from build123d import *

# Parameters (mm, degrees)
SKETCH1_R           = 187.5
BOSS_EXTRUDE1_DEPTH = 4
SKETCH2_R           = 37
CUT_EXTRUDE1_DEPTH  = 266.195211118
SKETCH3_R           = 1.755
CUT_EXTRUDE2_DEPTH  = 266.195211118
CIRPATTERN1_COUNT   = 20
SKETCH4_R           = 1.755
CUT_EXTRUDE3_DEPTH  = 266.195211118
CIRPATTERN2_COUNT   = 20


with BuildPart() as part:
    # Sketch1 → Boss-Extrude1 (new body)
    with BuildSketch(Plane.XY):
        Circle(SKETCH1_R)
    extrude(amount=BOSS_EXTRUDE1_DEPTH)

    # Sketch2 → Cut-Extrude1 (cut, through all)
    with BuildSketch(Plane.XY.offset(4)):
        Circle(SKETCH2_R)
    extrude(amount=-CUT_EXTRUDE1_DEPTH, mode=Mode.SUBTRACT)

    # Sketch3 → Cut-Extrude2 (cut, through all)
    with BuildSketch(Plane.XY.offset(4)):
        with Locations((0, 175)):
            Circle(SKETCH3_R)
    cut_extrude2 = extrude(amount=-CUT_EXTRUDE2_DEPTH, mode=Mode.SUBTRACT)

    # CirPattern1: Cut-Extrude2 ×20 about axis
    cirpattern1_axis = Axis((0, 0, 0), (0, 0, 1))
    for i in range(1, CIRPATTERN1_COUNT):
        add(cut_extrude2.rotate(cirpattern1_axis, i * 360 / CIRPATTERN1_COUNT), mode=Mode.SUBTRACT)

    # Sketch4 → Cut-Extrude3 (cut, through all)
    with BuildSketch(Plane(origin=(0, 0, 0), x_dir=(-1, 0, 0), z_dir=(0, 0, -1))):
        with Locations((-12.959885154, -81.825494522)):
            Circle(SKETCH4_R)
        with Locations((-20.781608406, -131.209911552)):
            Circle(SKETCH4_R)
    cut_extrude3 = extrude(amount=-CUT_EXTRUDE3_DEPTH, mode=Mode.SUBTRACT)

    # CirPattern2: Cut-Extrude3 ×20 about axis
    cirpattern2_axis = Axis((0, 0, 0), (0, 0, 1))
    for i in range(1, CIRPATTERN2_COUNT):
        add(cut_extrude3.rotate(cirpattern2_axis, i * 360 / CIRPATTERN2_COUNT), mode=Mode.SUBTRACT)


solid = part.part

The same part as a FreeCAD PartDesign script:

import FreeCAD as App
import Part
import Sketcher
Q = App.Units.Quantity

doc = App.newDocument("Part")
body = doc.addObject("PartDesign::Body", "Body")

# Sketch on XY plane
sketch1 = body.newObject("Sketcher::SketchObject", "Sketch")
sketch1.AttachmentSupport = (doc.getObject("XY_Plane"), [""])
sketch1.MapMode = "FlatFace"
sketch1.addGeometry(Part.Circle(App.Vector(0, 0, 0), App.Vector(0, 0, 1), 188), False)
sketch1.addConstraint([
    Sketcher.Constraint("Coincident", 0, 3, -1, 1),
    Sketcher.Constraint("Diameter", 0, Q("375 mm")),
])
pad1 = body.newObject("PartDesign::Pad", "Pad")
pad1.Profile = sketch1
pad1.Length = 4

# Sketch on XY plane
sketch2 = body.newObject("Sketcher::SketchObject", "Sketch001")
sketch2.AttachmentSupport = (doc.getObject("XY_Plane"), [""])
sketch2.MapMode = "FlatFace"
sketch2.AttachmentOffset = App.Placement(App.Vector(0, 0, 4), App.Rotation())
sketch2.addGeometry(Part.Circle(App.Vector(0, 0, 0), App.Vector(0, 0, 1), 37), False)
sketch2.addConstraint([
    Sketcher.Constraint("Coincident", 0, 3, -1, 1),
    Sketcher.Constraint("Diameter", 0, Q("74 mm")),
])
pocket1 = body.newObject("PartDesign::Pocket", "Pocket")
pocket1.Profile = sketch2
pocket1.Type = "ThroughAll"

# Sketch on XY plane
sketch3 = body.newObject("Sketcher::SketchObject", "Sketch002")
sketch3.AttachmentSupport = (doc.getObject("XY_Plane"), [""])
sketch3.MapMode = "FlatFace"
sketch3.AttachmentOffset = App.Placement(App.Vector(0, 0, 4), App.Rotation())
sketch3.addGeometry(Part.Circle(App.Vector(0, 175, 0), App.Vector(0, 0, 1), 1.8), False)
sketch3.addConstraint([
    Sketcher.Constraint("PointOnObject", 0, 3, -2),
    Sketcher.Constraint("Diameter", 0, Q("3.51 mm")),
    Sketcher.Constraint("DistanceY", -1, 1, 0, 3, Q("175 mm")),
])
pocket2 = body.newObject("PartDesign::Pocket", "Pocket001")
pocket2.Profile = sketch3
pocket2.Type = "ThroughAll"
doc.recompute()

polarpattern = body.newObject("PartDesign::PolarPattern", "PolarPattern")
polarpattern.Originals = [pocket2]
polarpattern.Axis = (doc.getObject("Z_Axis"), [""])
polarpattern.Angle = 360
polarpattern.Occurrences = 20
body.Tip = polarpattern

# Sketch on XY plane
sketch4 = body.newObject("Sketcher::SketchObject", "Sketch003")
sketch4.AttachmentSupport = (doc.getObject("XY_Plane"), [""])
sketch4.MapMode = "FlatFace"
sketch4.addGeometry([
    Part.Circle(App.Vector(13, -81.8, 0), App.Vector(0, 0, 1), 1.8),
    Part.Circle(App.Vector(20.8, -131.2, 0), App.Vector(0, 0, 1), 1.8),
], False)
sketch4.addConstraint([
    Sketcher.Constraint("Equal", 0, 1),
    Sketcher.Constraint("Diameter", 0, Q("3.51 mm")),
    Sketcher.Constraint("DistanceX", -1, 1, 1, 3, Q("20.781608 mm")),
    Sketcher.Constraint("DistanceY", 1, 3, -1, 1, Q("131.209912 mm")),
    Sketcher.Constraint("DistanceX", -1, 1, 0, 3, Q("12.959885 mm")),
    Sketcher.Constraint("DistanceY", 0, 3, -1, 1, Q("81.825495 mm")),
])
pocket3 = body.newObject("PartDesign::Pocket", "Pocket002")
pocket3.Profile = sketch4
pocket3.Type = "ThroughAll"
pocket3.Reversed = True
doc.recompute()

polarpattern2 = body.newObject("PartDesign::PolarPattern", "PolarPattern001")
polarpattern2.Originals = [pocket3]
polarpattern2.Axis = (doc.getObject("Z_Axis"), [""])
polarpattern2.Angle = 360
polarpattern2.Occurrences = 20
body.Tip = polarpattern2

doc.recompute()
